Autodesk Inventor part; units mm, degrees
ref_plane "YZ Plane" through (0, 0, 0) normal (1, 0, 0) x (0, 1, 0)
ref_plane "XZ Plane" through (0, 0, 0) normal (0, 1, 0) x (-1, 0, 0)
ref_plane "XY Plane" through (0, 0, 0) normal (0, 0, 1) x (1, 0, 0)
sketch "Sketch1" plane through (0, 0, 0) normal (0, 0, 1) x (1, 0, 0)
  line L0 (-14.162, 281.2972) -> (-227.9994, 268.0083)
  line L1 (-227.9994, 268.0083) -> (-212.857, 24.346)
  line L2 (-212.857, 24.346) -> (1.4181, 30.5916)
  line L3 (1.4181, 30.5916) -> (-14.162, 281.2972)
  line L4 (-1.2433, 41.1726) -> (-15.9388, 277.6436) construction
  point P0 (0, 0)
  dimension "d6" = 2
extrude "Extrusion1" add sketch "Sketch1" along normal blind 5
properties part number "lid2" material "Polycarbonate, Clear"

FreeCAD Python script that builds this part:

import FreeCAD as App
import Part
import Sketcher

V = App.Vector


def add_polygon(sketch, points):
    """Adds a closed chain of lines whose ends are joined by coincident constraints."""
    first, n = sketch.GeometryCount, len(points)
    for a, b in zip(points, points[1:] + points[:1]):
        sketch.addGeometry(Part.LineSegment(App.Vector(*a, 0), App.Vector(*b, 0)), False)
    for i in range(n):
        sketch.addConstraint(Sketcher.Constraint("Coincident", first + i, 2, first + (i + 1) % n, 1))

doc = App.newDocument("Part")
body = doc.addObject("PartDesign::Body", "Body")

sketch1 = doc.addObject("Sketcher::SketchObject", "Sketch")
body.addObject(sketch1)
sketch1.AttachmentSupport = (doc.XY_Plane, [""])
sketch1.MapMode = "FlatFace"
add_polygon(sketch1, [(1.4181, 30.5916), (-14.162, 281.2972), (-227.9994, 268.0083), (-212.857, 24.346)])
sketch1.addConstraint([
    Sketcher.Constraint("Distance", 1, 214.25),
    Sketcher.Constraint("DistanceX", 0, 2, 3, 2, 15.58),
    Sketcher.Constraint("Distance", 3, 214.366),
    Sketcher.Constraint("DistanceX", 0, 2, -1, 1, 14.162),
    Sketcher.Constraint("DistanceX", 2, 2, -1, 1, 212.857),
    Sketcher.Constraint("DistanceY", -1, 1, 2, 2, 24.346),
    Sketcher.Constraint("DistanceY", 1, 2, 0, 2, 13.289),
    Sketcher.Constraint("Distance", 0, 251.1892),
])
pad1 = doc.addObject("PartDesign::Pad", "Pad")
body.addObject(pad1)
pad1.Profile = sketch1
pad1.Length = 5

doc.recompute()
